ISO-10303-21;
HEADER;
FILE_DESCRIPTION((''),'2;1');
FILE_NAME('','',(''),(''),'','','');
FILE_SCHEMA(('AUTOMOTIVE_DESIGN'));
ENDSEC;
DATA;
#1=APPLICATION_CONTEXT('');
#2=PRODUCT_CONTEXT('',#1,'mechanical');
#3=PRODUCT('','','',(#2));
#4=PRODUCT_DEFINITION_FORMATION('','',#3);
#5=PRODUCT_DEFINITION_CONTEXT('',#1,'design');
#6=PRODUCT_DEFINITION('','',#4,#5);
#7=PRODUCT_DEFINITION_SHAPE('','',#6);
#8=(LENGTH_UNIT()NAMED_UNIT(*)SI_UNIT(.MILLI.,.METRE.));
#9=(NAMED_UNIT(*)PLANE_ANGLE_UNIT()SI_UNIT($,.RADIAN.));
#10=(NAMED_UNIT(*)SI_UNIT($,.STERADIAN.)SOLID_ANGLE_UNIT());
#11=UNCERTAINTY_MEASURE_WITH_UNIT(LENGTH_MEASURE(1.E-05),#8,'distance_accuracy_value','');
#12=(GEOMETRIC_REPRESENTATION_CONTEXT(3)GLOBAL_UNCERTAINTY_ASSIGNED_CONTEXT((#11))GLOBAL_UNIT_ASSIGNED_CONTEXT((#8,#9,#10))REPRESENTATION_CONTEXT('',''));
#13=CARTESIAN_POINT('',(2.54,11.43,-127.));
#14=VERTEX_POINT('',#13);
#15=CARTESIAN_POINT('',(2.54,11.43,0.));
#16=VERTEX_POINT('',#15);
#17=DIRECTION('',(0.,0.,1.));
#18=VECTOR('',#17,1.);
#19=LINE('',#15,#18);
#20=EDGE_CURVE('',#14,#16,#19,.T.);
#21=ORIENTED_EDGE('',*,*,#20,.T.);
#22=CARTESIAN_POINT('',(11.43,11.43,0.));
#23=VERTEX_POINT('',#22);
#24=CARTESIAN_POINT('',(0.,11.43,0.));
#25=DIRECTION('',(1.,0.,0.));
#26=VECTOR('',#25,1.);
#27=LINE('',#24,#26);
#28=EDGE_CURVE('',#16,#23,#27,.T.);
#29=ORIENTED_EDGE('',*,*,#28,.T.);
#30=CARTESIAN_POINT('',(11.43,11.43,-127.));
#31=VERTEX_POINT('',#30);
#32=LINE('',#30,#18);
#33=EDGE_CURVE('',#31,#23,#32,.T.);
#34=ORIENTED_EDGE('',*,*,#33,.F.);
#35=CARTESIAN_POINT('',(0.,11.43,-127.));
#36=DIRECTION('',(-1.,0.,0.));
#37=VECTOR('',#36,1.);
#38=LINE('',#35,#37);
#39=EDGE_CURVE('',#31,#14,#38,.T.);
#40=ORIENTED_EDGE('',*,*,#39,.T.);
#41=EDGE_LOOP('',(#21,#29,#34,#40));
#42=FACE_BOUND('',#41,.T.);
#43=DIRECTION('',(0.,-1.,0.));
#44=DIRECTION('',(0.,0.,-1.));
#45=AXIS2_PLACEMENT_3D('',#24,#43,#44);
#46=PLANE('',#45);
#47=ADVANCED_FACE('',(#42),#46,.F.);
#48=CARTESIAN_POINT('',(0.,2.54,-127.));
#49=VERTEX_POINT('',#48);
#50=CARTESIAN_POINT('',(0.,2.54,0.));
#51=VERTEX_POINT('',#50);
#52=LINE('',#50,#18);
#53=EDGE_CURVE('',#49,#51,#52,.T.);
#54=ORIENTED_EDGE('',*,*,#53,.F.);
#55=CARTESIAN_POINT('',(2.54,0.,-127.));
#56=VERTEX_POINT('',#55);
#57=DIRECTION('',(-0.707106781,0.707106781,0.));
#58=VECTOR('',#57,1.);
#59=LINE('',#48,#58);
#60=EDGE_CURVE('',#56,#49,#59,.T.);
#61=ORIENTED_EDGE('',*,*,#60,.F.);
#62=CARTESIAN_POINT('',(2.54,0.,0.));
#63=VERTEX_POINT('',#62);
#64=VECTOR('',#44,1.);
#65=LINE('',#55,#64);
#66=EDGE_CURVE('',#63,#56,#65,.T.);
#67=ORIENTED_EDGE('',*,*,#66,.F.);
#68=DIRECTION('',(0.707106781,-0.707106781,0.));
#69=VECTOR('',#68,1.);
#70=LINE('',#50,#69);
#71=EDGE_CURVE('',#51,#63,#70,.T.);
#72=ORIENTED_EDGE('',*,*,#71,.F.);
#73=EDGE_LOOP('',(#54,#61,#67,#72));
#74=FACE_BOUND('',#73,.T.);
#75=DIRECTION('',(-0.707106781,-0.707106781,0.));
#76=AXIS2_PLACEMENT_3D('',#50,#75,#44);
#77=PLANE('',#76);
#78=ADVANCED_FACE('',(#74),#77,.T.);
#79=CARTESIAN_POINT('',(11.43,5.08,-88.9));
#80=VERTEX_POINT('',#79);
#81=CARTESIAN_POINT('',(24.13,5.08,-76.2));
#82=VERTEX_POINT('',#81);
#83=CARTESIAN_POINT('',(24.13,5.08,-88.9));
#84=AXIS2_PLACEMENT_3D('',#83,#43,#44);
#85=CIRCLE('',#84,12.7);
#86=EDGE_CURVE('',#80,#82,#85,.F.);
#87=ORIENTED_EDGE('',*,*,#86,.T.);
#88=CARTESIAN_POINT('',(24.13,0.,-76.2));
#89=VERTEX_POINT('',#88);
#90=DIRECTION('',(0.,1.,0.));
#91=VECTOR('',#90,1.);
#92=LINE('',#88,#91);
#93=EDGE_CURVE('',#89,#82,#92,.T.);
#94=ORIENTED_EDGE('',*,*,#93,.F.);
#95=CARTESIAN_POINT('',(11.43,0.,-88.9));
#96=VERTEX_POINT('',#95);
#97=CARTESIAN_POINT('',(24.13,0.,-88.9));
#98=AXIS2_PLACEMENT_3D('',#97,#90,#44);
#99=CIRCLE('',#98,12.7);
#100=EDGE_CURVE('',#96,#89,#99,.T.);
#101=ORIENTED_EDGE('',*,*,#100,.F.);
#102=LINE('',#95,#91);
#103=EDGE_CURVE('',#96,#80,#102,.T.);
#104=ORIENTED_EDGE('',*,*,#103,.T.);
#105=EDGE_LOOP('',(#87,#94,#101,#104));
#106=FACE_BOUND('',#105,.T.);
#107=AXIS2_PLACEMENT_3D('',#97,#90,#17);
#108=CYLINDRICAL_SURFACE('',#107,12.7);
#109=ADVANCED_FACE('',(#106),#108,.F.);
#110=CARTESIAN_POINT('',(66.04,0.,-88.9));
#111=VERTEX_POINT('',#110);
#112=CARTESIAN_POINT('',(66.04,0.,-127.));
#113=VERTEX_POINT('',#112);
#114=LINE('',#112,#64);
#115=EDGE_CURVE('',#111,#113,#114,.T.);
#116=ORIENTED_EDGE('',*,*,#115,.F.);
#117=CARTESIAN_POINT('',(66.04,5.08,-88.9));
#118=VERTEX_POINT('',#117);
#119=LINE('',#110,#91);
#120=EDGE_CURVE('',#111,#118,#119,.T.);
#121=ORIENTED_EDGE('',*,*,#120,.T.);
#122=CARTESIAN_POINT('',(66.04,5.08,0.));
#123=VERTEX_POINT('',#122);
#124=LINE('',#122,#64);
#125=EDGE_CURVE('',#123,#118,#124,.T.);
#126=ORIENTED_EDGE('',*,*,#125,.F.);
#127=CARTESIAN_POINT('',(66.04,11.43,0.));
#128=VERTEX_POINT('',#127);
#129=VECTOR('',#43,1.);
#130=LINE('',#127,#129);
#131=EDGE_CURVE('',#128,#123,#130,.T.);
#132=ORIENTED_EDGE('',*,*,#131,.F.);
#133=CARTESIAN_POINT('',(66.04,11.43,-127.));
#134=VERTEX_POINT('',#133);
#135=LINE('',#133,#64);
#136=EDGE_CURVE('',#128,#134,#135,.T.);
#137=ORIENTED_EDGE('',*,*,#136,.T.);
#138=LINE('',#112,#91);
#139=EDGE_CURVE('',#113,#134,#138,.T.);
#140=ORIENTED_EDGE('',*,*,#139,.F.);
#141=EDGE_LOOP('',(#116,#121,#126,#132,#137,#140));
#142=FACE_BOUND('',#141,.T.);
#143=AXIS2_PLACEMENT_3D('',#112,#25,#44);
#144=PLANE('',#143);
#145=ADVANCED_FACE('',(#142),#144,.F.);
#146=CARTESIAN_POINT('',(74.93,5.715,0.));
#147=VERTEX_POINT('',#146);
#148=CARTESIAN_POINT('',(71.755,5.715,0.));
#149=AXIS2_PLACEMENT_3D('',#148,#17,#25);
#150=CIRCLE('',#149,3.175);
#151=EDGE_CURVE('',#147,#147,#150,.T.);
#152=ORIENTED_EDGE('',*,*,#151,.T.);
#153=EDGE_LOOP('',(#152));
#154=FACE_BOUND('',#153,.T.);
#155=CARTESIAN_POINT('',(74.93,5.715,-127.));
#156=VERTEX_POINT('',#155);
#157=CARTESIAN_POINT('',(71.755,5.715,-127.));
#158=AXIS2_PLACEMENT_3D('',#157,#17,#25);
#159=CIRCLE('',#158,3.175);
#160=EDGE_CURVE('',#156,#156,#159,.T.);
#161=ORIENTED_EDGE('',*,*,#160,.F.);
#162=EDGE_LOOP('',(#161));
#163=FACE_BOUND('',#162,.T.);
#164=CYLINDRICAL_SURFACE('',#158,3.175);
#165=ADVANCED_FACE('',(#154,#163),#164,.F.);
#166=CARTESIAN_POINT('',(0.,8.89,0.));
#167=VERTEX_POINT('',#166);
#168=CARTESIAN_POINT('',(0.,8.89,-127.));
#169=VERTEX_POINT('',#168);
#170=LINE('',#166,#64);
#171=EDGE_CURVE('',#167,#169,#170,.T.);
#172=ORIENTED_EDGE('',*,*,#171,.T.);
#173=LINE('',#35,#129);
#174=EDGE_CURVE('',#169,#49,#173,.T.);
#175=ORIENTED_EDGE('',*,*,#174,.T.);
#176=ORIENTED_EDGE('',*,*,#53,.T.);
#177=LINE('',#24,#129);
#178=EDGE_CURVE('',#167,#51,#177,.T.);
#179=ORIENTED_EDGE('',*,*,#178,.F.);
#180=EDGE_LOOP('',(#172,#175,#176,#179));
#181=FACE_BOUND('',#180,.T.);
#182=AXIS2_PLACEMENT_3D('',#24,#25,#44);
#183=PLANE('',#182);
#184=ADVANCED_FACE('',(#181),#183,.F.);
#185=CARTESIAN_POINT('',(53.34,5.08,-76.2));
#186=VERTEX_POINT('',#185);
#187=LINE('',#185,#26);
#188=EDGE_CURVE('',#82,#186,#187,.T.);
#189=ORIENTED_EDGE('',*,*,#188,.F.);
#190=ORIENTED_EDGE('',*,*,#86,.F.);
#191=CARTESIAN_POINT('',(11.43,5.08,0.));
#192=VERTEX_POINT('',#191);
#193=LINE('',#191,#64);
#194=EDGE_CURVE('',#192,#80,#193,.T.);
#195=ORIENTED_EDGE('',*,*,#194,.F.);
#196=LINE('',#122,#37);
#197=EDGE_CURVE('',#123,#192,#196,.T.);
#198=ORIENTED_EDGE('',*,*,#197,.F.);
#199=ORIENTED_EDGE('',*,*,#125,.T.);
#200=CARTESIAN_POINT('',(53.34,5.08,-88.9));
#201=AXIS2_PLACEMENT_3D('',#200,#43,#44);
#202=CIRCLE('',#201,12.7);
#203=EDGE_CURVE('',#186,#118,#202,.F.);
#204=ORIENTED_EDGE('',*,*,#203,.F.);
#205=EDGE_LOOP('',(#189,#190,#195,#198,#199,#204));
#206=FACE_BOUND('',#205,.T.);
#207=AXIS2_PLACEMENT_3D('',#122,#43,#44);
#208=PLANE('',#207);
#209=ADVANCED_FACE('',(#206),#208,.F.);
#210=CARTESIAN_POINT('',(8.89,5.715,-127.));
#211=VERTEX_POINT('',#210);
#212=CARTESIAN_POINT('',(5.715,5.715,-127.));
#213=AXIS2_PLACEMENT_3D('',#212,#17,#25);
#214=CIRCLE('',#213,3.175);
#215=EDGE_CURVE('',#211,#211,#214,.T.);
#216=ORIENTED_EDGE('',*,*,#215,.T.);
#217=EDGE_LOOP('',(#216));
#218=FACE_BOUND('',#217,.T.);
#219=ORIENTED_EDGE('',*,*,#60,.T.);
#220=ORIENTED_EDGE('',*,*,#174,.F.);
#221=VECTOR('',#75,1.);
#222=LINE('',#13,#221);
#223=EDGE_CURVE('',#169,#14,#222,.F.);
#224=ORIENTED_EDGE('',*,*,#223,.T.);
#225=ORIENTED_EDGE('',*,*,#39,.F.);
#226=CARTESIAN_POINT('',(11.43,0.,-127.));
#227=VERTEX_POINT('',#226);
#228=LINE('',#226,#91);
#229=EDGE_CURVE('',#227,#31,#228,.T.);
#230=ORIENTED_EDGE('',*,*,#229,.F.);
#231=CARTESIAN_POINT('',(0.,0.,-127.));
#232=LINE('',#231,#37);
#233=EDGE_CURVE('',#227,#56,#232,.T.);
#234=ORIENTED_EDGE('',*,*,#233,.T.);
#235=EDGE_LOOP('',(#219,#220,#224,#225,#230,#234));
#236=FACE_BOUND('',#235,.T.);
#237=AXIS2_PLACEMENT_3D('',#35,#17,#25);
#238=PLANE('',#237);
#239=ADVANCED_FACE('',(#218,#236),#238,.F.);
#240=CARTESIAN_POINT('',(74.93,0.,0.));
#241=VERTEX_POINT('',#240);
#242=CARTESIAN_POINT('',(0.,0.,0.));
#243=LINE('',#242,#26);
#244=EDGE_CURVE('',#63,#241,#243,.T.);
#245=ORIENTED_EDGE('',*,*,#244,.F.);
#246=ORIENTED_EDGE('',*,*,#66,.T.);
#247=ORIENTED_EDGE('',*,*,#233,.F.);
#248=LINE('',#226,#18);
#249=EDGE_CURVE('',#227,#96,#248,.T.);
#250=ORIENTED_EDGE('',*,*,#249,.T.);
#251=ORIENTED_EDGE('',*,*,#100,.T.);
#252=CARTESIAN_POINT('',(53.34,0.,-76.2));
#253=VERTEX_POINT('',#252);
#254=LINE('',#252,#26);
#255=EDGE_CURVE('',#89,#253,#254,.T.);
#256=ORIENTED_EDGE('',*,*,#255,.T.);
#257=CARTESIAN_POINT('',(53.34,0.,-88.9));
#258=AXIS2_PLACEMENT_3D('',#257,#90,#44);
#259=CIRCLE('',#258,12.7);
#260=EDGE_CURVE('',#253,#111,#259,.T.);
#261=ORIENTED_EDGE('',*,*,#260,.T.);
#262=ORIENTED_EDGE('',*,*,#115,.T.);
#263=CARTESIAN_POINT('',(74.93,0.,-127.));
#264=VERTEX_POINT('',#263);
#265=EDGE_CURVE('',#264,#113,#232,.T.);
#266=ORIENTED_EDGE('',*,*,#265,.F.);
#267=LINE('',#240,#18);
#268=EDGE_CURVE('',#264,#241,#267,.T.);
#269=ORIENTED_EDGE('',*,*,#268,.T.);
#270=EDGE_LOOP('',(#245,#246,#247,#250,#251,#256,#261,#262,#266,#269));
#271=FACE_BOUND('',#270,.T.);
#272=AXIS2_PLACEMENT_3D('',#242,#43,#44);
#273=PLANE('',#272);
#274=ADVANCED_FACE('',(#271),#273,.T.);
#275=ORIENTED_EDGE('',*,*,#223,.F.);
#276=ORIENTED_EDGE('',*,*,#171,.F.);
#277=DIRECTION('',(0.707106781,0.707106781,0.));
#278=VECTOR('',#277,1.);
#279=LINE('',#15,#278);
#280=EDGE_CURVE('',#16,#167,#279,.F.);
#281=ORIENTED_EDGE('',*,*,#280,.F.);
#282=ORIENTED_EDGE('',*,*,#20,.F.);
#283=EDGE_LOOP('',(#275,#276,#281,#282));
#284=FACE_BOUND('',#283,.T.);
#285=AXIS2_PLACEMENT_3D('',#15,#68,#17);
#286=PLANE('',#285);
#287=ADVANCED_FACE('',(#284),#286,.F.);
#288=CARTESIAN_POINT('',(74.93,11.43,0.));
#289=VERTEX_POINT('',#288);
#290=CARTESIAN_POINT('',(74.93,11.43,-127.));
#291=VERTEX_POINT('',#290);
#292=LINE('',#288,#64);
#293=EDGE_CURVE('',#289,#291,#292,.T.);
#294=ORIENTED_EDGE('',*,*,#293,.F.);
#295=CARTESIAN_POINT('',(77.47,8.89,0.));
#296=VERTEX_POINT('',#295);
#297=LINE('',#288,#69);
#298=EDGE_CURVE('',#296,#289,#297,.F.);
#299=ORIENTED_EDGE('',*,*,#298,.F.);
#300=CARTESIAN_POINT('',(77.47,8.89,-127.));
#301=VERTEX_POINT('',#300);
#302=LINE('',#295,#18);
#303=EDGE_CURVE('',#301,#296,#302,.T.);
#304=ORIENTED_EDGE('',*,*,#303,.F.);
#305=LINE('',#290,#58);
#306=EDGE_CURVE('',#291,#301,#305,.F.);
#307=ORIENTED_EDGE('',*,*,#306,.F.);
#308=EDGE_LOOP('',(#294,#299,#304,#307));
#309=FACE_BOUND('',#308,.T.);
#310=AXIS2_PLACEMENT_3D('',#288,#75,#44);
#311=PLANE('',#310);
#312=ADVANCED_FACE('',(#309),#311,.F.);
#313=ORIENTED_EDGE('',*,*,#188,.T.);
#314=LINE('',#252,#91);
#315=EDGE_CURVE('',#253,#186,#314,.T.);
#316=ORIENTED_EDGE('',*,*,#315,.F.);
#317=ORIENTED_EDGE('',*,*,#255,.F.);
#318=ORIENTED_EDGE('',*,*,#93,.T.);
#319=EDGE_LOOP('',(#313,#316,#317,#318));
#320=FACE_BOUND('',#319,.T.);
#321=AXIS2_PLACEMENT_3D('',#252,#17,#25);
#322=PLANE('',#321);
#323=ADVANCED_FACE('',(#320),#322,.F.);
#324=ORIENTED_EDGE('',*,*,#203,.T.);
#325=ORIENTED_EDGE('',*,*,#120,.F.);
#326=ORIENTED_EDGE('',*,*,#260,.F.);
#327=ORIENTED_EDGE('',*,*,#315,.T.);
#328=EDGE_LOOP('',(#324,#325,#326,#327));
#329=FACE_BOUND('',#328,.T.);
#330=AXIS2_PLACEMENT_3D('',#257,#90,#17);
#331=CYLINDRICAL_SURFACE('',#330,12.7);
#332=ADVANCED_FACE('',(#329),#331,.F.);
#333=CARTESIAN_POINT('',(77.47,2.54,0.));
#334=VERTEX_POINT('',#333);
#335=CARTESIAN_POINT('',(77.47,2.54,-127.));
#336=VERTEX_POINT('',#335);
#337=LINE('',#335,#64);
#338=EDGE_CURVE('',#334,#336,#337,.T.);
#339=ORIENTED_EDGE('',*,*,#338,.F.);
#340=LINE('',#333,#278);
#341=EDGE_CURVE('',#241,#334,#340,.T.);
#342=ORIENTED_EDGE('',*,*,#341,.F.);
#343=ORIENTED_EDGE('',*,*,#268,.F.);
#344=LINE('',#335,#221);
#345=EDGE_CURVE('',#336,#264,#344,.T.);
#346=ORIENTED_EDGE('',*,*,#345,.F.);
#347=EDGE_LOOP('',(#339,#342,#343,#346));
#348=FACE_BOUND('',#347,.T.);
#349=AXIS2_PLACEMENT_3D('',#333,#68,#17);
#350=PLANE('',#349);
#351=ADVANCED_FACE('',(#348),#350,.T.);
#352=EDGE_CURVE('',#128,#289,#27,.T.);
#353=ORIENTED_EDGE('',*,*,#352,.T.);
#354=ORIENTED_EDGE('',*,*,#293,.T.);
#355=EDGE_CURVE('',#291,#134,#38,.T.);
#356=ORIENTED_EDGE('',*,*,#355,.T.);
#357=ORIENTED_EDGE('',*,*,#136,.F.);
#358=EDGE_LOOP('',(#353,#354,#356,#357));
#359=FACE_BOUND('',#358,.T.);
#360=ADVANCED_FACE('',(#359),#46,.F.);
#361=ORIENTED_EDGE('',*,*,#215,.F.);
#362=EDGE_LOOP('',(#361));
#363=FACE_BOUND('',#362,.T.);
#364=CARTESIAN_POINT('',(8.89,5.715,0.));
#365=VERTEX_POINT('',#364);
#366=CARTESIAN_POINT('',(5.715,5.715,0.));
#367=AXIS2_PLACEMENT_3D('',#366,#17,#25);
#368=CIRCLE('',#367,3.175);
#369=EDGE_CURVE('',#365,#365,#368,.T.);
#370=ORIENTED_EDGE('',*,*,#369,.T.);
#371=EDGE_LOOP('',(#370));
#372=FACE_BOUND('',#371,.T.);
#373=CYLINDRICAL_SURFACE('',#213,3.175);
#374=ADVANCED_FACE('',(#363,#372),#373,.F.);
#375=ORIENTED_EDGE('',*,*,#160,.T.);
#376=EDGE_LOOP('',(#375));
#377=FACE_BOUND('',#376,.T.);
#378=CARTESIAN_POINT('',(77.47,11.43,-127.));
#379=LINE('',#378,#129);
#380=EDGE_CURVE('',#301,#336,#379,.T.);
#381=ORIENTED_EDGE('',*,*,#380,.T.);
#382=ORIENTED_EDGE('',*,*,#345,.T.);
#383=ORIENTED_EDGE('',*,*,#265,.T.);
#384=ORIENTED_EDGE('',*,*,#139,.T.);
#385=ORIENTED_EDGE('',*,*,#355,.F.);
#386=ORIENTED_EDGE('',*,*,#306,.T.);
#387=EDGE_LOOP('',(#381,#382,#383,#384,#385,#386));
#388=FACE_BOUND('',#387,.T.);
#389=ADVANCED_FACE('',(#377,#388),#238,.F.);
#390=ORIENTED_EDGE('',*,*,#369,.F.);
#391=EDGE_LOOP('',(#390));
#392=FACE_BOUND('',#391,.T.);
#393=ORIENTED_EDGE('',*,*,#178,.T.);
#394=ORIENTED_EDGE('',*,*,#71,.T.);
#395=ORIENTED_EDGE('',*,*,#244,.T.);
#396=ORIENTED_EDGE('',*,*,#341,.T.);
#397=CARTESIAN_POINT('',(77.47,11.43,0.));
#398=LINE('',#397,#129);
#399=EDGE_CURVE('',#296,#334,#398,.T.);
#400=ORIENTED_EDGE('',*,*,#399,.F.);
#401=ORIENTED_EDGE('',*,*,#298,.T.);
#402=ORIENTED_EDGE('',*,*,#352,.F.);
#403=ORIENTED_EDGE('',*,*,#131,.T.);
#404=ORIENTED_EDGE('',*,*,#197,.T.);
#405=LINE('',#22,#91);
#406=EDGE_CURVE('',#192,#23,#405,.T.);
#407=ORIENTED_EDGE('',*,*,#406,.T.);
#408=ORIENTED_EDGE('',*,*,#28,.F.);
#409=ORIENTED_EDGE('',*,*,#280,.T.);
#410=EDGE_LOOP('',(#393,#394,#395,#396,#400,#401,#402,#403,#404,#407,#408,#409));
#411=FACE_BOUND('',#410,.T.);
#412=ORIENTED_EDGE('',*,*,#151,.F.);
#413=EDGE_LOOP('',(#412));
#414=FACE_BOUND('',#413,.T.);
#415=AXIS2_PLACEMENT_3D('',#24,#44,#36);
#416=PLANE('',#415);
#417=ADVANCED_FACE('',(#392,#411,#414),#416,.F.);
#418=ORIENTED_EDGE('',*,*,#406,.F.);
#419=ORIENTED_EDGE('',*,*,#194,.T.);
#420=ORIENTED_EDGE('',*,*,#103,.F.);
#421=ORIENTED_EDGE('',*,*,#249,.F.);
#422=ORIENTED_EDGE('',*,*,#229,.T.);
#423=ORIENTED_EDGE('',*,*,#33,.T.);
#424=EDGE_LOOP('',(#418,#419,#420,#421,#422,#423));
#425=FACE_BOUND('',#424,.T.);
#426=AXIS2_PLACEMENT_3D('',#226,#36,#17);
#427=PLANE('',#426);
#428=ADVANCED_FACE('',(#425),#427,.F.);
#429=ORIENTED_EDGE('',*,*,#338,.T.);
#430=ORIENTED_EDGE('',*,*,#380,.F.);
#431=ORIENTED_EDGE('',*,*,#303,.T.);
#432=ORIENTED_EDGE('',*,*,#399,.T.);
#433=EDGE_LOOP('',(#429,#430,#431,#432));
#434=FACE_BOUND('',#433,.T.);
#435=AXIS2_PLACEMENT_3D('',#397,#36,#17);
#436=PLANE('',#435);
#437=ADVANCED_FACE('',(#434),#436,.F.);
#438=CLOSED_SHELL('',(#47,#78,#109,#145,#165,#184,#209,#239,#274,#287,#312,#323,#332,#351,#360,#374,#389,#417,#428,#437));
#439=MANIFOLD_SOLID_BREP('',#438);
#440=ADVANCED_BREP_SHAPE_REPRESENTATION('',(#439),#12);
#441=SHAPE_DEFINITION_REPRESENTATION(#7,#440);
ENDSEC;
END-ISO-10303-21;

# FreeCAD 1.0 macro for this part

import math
import FreeCAD as App
import Part
import Sketcher
Q = App.Units.Quantity


def edges_at(feature, points):
    """Names of the edges that pass closest to the given points."""
    edges = feature.Shape.Edges
    near = lambda p: min(range(len(edges)), key=lambda i: edges[i].distToShape(Part.Vertex(*p))[0])
    return sorted({f"Edge{near(p) + 1}" for p in points})


def add_polygon(sketch, points):
    """Adds a closed chain of lines whose ends are joined by coincident constraints."""
    first, n = sketch.GeometryCount, len(points)
    for a, b in zip(points, points[1:] + points[:1]):
        sketch.addGeometry(Part.LineSegment(App.Vector(*a, 0), App.Vector(*b, 0)), False)
    for i in range(n):
        sketch.addConstraint(Sketcher.Constraint("Coincident", first + i, 2, first + (i + 1) % n, 1))

doc = App.newDocument("Part")
body = doc.addObject("PartDesign::Body", "Body")

sketch1 = body.newObject("Sketcher::SketchObject", "Sketch")
sketch1.AttachmentSupport = (doc.getObject("XZ_Plane"), [""])
sketch1.MapMode = "FlatFace"
add_polygon(sketch1, [(0, -127), (0, 0), (77, 0), (77, -127)])
sketch1.addConstraint([
    Sketcher.Constraint("Vertical", 0),
    Sketcher.Constraint("Horizontal", 1),
    Sketcher.Constraint("Vertical", 2),
    Sketcher.Constraint("Horizontal", 3),
    Sketcher.Constraint("Coincident", 0, 2, -1, 1),
    Sketcher.Constraint("DistanceY", 0, 1, 0, 2, Q("5 in")),
    Sketcher.Constraint("DistanceX", 1, 1, 1, 2, Q("3.05 in")),
])
pad1 = body.newObject("PartDesign::Pad", "Pad")
pad1.Profile = sketch1
pad1.Length = Q("0.45 in")
pad1.Reversed = True

sketch2 = body.newObject("Sketcher::SketchObject", "Sketch001")
sketch2.AttachmentSupport = (doc.getObject("XY_Plane"), [""])
sketch2.MapMode = "FlatFace"
sketch2.addGeometry([
    Part.Circle(App.Vector(5.7, 5.7, 0), App.Vector(0, 0, 1), 3.2),
    Part.Circle(App.Vector(71.8, 5.7, 0), App.Vector(0, 0, 1), 3.2),
], False)
sketch2.addConstraint([
    Sketcher.Constraint("Equal", 0, 1),
    Sketcher.Constraint("Horizontal", 0, 3, 1, 3),
    Sketcher.Constraint("Diameter", 0, Q("0.25 in")),
    Sketcher.Constraint("DistanceX", 0, 3, 1, 3, Q("2.6 in")),
    Sketcher.Constraint("DistanceX", -1, 1, 0, 3, Q("0.225 in")),
    Sketcher.Constraint("DistanceY", -1, 1, 0, 3, Q("0.225 in")),
])
pocket1 = body.newObject("PartDesign::Pocket", "Pocket")
pocket1.Profile = sketch2
pocket1.Type = "ThroughAll"

sketch3 = body.newObject("Sketcher::SketchObject", "Sketch002")
sketch3.AttachmentSupport = (doc.getObject("XZ_Plane"), [""])
sketch3.MapMode = "FlatFace"
sketch3.AttachmentOffset = App.Placement(App.Vector(0, 0, -0.45 * 25.4), App.Rotation())
sketch3.addGeometry([
    Part.LineSegment(App.Vector(11, -127, 0), App.Vector(11, -89, 0)),
    Part.ArcOfCircle(Part.Circle(App.Vector(24, -89, 0), App.Vector(0, 0, 1), 13), math.radians(90), math.radians(180)),
    Part.LineSegment(App.Vector(24, -76, 0), App.Vector(53, -76, 0)),
    Part.ArcOfCircle(Part.Circle(App.Vector(53, -89, 0), App.Vector(0, 0, 1), 13), math.radians(0), math.radians(90)),
    Part.LineSegment(App.Vector(66, -89, 0), App.Vector(66, -127, 0)),
    Part.LineSegment(App.Vector(66, -127, 0), App.Vector(11, -127, 0)),
], False)
sketch3.addConstraint([
    Sketcher.Constraint("Tangent", 0, 2, 1, 2),
    Sketcher.Constraint("Tangent", 1, 1, 2, 1),
    Sketcher.Constraint("Tangent", 2, 2, 3, 2),
    Sketcher.Constraint("Tangent", 3, 1, 4, 1),
    Sketcher.Constraint("Coincident", 4, 2, 5, 1),
    Sketcher.Constraint("Coincident", 5, 2, 0, 1),
    Sketcher.Constraint("Vertical", 0),
    Sketcher.Constraint("Horizontal", 2),
    Sketcher.Constraint("Vertical", 4),
    Sketcher.Constraint("Horizontal", 5),
    Sketcher.Constraint("Equal", 1, 3),
    Sketcher.Constraint("Radius", 1, Q("0.5 in")),
    Sketcher.Constraint("DistanceY", 0, 1, 0, 2, Q("1.5 in")),
    Sketcher.Constraint("DistanceY", 1, 1, -1, 1, Q("3 in")),
    Sketcher.Constraint("DistanceX", 2, 1, 2, 2, Q("1.15 in")),
    Sketcher.Constraint("DistanceX", -1, 1, 3, 3, Q("2.1 in")),
])
pocket2 = body.newObject("PartDesign::Pocket", "Pocket001")
pocket2.Profile = sketch3
pocket2.Type = "ThroughAll"
pocket2.Reversed = True

sketch4 = body.newObject("Sketcher::SketchObject", "Sketch003")
sketch4.AttachmentSupport = (doc.getObject("XY_Plane"), [""])
sketch4.MapMode = "FlatFace"
sketch4.AttachmentOffset = App.Placement(App.Vector(0, 0, -5 * 25.4), App.Rotation())
add_polygon(sketch4, [(66, 11), (66, 5), (11, 5), (11, 11)])
sketch4.addConstraint([
    Sketcher.Constraint("Vertical", 0),
    Sketcher.Constraint("Horizontal", 1),
    Sketcher.Constraint("Vertical", 2),
    Sketcher.Constraint("Horizontal", 3),
    Sketcher.Constraint("DistanceX", 1, 2, 1, 1, Q("2.15 in")),
    Sketcher.Constraint("DistanceY", 0, 2, 0, 1, Q("0.25 in")),
    Sketcher.Constraint("DistanceX", -1, 1, 0, 2, Q("2.6 in")),
    Sketcher.Constraint("DistanceY", -1, 1, 0, 2, Q("0.2 in")),
])
pocket3 = body.newObject("PartDesign::Pocket", "Pocket002")
pocket3.Profile = sketch4
pocket3.Type = "ThroughAll"
pocket3.Reversed = True
doc.recompute()

chamfer = body.newObject("PartDesign::Chamfer", "Chamfer")
chamfer.Base = (pocket3, edges_at(pocket3, [
    (77.47, 11.43, -63.5),
    (0, 11.43, -63.5),
    (77.47, 0, -63.5),
    (0, 0, -63.5),
]))
chamfer.Size = Q("0.1 in")

doc.recompute()
